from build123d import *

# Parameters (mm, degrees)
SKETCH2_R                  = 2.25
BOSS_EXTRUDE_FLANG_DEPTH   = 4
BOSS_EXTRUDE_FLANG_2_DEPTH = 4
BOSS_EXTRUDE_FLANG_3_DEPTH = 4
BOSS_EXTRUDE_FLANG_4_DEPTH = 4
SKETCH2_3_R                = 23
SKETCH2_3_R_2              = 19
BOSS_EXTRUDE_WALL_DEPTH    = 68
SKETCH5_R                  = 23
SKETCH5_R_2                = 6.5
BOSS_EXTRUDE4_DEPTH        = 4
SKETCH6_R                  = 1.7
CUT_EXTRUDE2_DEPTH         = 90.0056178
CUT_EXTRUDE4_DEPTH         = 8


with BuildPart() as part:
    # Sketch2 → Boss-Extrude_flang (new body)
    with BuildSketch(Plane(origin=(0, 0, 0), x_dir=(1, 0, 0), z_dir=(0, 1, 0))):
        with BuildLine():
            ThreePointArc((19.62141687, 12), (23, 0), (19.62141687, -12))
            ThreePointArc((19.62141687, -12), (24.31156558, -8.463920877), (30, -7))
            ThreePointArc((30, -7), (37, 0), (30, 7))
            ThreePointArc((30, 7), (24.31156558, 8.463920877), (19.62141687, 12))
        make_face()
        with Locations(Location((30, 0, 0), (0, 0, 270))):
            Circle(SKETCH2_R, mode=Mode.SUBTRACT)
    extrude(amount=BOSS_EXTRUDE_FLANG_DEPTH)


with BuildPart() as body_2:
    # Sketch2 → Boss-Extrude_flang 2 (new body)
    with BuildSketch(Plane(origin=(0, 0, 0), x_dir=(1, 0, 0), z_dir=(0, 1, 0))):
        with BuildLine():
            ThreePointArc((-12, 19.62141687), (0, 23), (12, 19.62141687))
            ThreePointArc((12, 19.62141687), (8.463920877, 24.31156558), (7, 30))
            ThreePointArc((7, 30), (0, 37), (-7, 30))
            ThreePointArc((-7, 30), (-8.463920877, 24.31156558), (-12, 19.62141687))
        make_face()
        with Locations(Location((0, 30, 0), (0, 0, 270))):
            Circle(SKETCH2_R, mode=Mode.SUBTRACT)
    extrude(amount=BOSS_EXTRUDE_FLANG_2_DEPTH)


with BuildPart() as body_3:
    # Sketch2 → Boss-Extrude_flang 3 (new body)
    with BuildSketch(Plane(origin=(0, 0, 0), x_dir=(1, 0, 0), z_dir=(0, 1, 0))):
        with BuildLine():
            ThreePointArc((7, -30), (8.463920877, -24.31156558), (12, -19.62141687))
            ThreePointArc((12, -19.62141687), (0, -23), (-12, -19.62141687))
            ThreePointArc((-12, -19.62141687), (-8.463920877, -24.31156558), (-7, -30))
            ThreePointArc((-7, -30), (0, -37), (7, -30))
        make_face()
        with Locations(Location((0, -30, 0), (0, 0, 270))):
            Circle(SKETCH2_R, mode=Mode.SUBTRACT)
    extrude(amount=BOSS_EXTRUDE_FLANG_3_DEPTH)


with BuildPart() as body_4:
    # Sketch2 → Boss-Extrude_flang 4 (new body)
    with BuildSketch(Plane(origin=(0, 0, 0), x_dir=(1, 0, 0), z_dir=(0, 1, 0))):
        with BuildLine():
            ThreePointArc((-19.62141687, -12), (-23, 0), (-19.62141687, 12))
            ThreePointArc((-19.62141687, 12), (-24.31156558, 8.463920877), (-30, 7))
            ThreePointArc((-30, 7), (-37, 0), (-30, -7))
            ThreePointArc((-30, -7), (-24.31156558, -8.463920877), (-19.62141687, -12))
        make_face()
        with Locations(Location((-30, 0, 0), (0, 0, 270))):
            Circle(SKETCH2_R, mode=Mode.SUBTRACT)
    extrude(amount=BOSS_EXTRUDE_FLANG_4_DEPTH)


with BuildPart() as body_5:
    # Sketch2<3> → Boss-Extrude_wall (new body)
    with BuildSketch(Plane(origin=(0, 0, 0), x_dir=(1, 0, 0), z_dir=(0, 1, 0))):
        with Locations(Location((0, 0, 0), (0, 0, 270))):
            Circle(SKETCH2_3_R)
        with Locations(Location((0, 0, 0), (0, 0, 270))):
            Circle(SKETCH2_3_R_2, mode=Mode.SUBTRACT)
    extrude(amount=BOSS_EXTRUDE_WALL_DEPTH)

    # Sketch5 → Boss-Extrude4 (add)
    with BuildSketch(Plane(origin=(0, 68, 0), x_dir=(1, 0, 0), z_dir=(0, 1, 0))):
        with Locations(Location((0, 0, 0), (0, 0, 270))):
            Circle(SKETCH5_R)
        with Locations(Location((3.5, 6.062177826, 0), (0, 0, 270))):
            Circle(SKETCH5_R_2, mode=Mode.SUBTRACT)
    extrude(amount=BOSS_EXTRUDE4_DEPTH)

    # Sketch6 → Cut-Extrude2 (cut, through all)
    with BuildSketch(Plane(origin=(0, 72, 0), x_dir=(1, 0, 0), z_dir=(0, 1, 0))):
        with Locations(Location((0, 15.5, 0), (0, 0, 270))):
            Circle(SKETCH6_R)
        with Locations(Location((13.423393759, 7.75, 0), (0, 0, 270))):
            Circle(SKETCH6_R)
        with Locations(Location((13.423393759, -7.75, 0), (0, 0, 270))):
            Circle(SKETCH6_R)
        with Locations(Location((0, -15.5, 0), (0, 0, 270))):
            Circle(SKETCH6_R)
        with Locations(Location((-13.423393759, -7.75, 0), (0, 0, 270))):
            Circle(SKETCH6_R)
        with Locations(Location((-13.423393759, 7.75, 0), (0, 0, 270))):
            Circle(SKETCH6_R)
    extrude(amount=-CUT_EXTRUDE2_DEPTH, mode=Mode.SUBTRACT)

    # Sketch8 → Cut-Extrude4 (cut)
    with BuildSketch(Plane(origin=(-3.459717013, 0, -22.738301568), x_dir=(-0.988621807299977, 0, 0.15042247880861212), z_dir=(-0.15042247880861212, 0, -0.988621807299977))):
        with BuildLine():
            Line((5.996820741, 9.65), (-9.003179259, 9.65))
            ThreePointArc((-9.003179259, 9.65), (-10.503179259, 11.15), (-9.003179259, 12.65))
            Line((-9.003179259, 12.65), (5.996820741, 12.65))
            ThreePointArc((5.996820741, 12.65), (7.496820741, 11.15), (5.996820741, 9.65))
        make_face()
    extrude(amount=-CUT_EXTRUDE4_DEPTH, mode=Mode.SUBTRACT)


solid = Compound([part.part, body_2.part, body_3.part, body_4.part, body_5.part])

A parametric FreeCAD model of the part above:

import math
import FreeCAD as App
import Part
import Sketcher
from FreeCAD import Vector

doc = App.newDocument("Part")
params = doc.addObject("Spreadsheet::Sheet", "Params")
for row, (alias, value) in enumerate([
    ("sketch1_radius", "23 mm"),
    ("sketch1_radius2", "15 mm"),
    ("sketch1_radius3", "7 mm"),
    ("sketch1_diameter", "4.5 mm"),
    ("pad1_length", "4 mm"),
    ("sketch2_radius", "23 mm"),
    ("sketch2_radius2", "15 mm"),
    ("sketch2_radius3", "7 mm"),
    ("sketch2_diameter", "4.5 mm"),
    ("pad2_length", "4 mm"),
    ("sketch3_radius", "15 mm"),
    ("sketch3_radius2", "23 mm"),
    ("sketch3_radius3", "7 mm"),
    ("sketch3_diameter", "4.5 mm"),
    ("pad3_length", "4 mm"),
    ("sketch4_radius", "23 mm"),
    ("sketch4_radius2", "15 mm"),
    ("sketch4_radius3", "7 mm"),
    ("sketch4_diameter", "4.5 mm"),
    ("pad4_length", "4 mm"),
    ("sketch5_diameter", "46 mm"),
    ("sketch5_diameter2", "38 mm"),
    ("pad5_length", "68 mm"),
    ("sketch6_diameter", "46 mm"),
    ("sketch6_diameter2", "13 mm"),
    ("pad6_length", "4 mm"),
    ("sketch7_diameter", "3.4 mm"),
    ("sketch8_radius", "1.5 mm"),
    ("sketch8_width", "15 mm"),
    ("pocket2_length", "8 mm"),
], start=1):
    params.set(f"A{row}", alias)
    params.set(f"B{row}", "=" + value)
    params.setAlias(f"B{row}", alias)

body = doc.addObject("PartDesign::Body", "Body")

sketch1 = doc.addObject("Sketcher::SketchObject", "Sketch")
body.addObject(sketch1)
sketch1.AttachmentSupport = (doc.XZ_Plane, [""])
sketch1.MapMode = "FlatFace"
sketch1.addGeometry([
    Part.ArcOfCircle(Part.Circle(Vector(0, 0, 0), Vector(0, 0, 1), 23), math.radians(-31), math.radians(31)),
    Part.ArcOfCircle(Part.Circle(Vector(30.8, 22, 0), Vector(0, 0, 1), 15), math.radians(-138), math.radians(-93)),
    Part.ArcOfCircle(Part.Circle(Vector(30, 0, 0), Vector(0, 0, 1), 7), math.radians(-90), math.radians(90)),
    Part.ArcOfCircle(Part.Circle(Vector(30.8, -22, 0), Vector(0, 0, 1), 15), math.radians(93), math.radians(138)),
    Part.Circle(Vector(30, 0, 0), Vector(0, 0, 1), 2.2),
], False)
sketch1.addConstraint([
    Sketcher.Constraint("Coincident", 0, 2, 1, 1),
    Sketcher.Constraint("Coincident", 1, 2, 2, 2),
    Sketcher.Constraint("Coincident", 2, 1, 3, 1),
    Sketcher.Constraint("Coincident", 3, 2, 0, 1),
    Sketcher.Constraint("Coincident", 0, 3, -1, 1),
    Sketcher.Constraint("Coincident", 4, 3, 2, 3),
    Sketcher.Constraint("Equal", 1, 3),
    Sketcher.Constraint("Symmetric", 1, 3, 3, 3, -1),
    Sketcher.Constraint("PointOnObject", 2, 3, -1),
    Sketcher.Constraint("Vertical", 4, 3, 1, 2),
    Sketcher.Constraint("Radius", 0, 23.0),
    Sketcher.Constraint("Radius", 1, 15.0),
    Sketcher.Constraint("Radius", 2, 7.0),
    Sketcher.Constraint("Diameter", 4, 4.5),
    Sketcher.Constraint("DistanceX", -1, 1, 2, 3, 30.0),
    Sketcher.Constraint("DistanceY", -1, 1, 0, 2, 12.0),
])
sketch1.setExpression("Constraints[10]", "Params.sketch1_radius")
sketch1.setExpression("Constraints[11]", "Params.sketch1_radius2")
sketch1.setExpression("Constraints[12]", "Params.sketch1_radius3")
sketch1.setExpression("Constraints[13]", "Params.sketch1_diameter")
pad1 = doc.addObject("PartDesign::Pad", "Pad")
body.addObject(pad1)
pad1.Profile = sketch1
pad1.setExpression("Length", "Params.pad1_length")
pad1.Reversed = True
body2 = doc.addObject("PartDesign::Body", "Body001")

sketch2 = doc.addObject("Sketcher::SketchObject", "Sketch001")
body2.addObject(sketch2)
sketch2.AttachmentSupport = (doc.getObject("XZ_Plane001"), [""])
sketch2.MapMode = "FlatFace"
sketch2.addGeometry([
    Part.ArcOfCircle(Part.Circle(Vector(0, 0, 0), Vector(0, 0, 1), 23), math.radians(-121), math.radians(-59)),
    Part.ArcOfCircle(Part.Circle(Vector(22, -30.8, 0), Vector(0, 0, 1), 15), math.radians(132), math.radians(177)),
    Part.ArcOfCircle(Part.Circle(Vector(0, -30, 0), Vector(0, 0, 1), 7), math.radians(180), math.radians(360)),
    Part.ArcOfCircle(Part.Circle(Vector(-22, -30.8, 0), Vector(0, 0, 1), 15), math.radians(3), math.radians(48)),
    Part.Circle(Vector(0, -30, 0), Vector(0, 0, 1), 2.2),
], False)
sketch2.addConstraint([
    Sketcher.Constraint("Coincident", 0, 2, 1, 1),
    Sketcher.Constraint("Coincident", 1, 2, 2, 2),
    Sketcher.Constraint("Coincident", 2, 1, 3, 1),
    Sketcher.Constraint("Coincident", 3, 2, 0, 1),
    Sketcher.Constraint("Coincident", 0, 3, -1, 1),
    Sketcher.Constraint("Coincident", 4, 3, 2, 3),
    Sketcher.Constraint("Equal", 1, 3),
    Sketcher.Constraint("Symmetric", 1, 3, 3, 3, -2),
    Sketcher.Constraint("PointOnObject", 2, 3, -2),
    Sketcher.Constraint("Horizontal", 4, 3, 1, 2),
    Sketcher.Constraint("Radius", 0, 23.0),
    Sketcher.Constraint("Radius", 1, 15.0),
    Sketcher.Constraint("Radius", 2, 7.0),
    Sketcher.Constraint("Diameter", 4, 4.5),
    Sketcher.Constraint("DistanceY", 2, 3, -1, 1, 30.0),
    Sketcher.Constraint("DistanceX", -1, 1, 0, 2, 12.0),
])
sketch2.setExpression("Constraints[10]", "Params.sketch2_radius")
sketch2.setExpression("Constraints[11]", "Params.sketch2_radius2")
sketch2.setExpression("Constraints[12]", "Params.sketch2_radius3")
sketch2.setExpression("Constraints[13]", "Params.sketch2_diameter")
pad2 = doc.addObject("PartDesign::Pad", "Pad001")
body2.addObject(pad2)
pad2.Profile = sketch2
pad2.setExpression("Length", "Params.pad2_length")
pad2.Reversed = True
body3 = doc.addObject("PartDesign::Body", "Body002")

sketch3 = doc.addObject("Sketcher::SketchObject", "Sketch002")
body3.addObject(sketch3)
sketch3.AttachmentSupport = (doc.getObject("XZ_Plane002"), [""])
sketch3.MapMode = "FlatFace"
sketch3.addGeometry([
    Part.ArcOfCircle(Part.Circle(Vector(22, 30.8, 0), Vector(0, 0, 1), 15), math.radians(-177), math.radians(-132)),
    Part.ArcOfCircle(Part.Circle(Vector(0, 0, 0), Vector(0, 0, 1), 23), math.radians(59), math.radians(121)),
    Part.ArcOfCircle(Part.Circle(Vector(-22, 30.8, 0), Vector(0, 0, 1), 15), math.radians(-48), math.radians(-3)),
    Part.ArcOfCircle(Part.Circle(Vector(0, 30, 0), Vector(0, 0, 1), 7), math.radians(0), math.radians(180)),
    Part.Circle(Vector(0, 30, 0), Vector(0, 0, 1), 2.2),
], False)
sketch3.addConstraint([
    Sketcher.Constraint("Coincident", 0, 2, 1, 1),
    Sketcher.Constraint("Coincident", 1, 2, 2, 1),
    Sketcher.Constraint("Coincident", 2, 2, 3, 2),
    Sketcher.Constraint("Coincident", 3, 1, 0, 1),
    Sketcher.Constraint("Coincident", 1, 3, -1, 1),
    Sketcher.Constraint("Coincident", 4, 3, 3, 3),
    Sketcher.Constraint("Equal", 0, 2),
    Sketcher.Constraint("Symmetric", 0, 3, 2, 3, -2),
    Sketcher.Constraint("PointOnObject", 3, 3, -2),
    Sketcher.Constraint("Horizontal", 4, 3, 2, 2),
    Sketcher.Constraint("Radius", 0, 15.0),
    Sketcher.Constraint("Radius", 1, 23.0),
    Sketcher.Constraint("Radius", 3, 7.0),
    Sketcher.Constraint("Diameter", 4, 4.5),
    Sketcher.Constraint("DistanceY", -1, 1, 3, 3, 30.0),
    Sketcher.Constraint("DistanceX", -1, 1, 0, 2, 12.0),
])
sketch3.setExpression("Constraints[10]", "Params.sketch3_radius")
sketch3.setExpression("Constraints[11]", "Params.sketch3_radius2")
sketch3.setExpression("Constraints[12]", "Params.sketch3_radius3")
sketch3.setExpression("Constraints[13]", "Params.sketch3_diameter")
pad3 = doc.addObject("PartDesign::Pad", "Pad002")
body3.addObject(pad3)
pad3.Profile = sketch3
pad3.setExpression("Length", "Params.pad3_length")
pad3.Reversed = True
body4 = doc.addObject("PartDesign::Body", "Body003")

sketch4 = doc.addObject("Sketcher::SketchObject", "Sketch003")
body4.addObject(sketch4)
sketch4.AttachmentSupport = (doc.getObject("XZ_Plane003"), [""])
sketch4.MapMode = "FlatFace"
sketch4.addGeometry([
    Part.ArcOfCircle(Part.Circle(Vector(0, 0, 0), Vector(0, 0, 1), 23), math.radians(149), math.radians(211)),
    Part.ArcOfCircle(Part.Circle(Vector(-30.8, -22, 0), Vector(0, 0, 1), 15), math.radians(42), math.radians(87)),
    Part.ArcOfCircle(Part.Circle(Vector(-30, 0, 0), Vector(0, 0, 1), 7), math.radians(90), math.radians(270)),
    Part.ArcOfCircle(Part.Circle(Vector(-30.8, 22, 0), Vector(0, 0, 1), 15), math.radians(-87), math.radians(-42)),
    Part.Circle(Vector(-30, 0, 0), Vector(0, 0, 1), 2.2),
], False)
sketch4.addConstraint([
    Sketcher.Constraint("Coincident", 0, 2, 1, 1),
    Sketcher.Constraint("Coincident", 1, 2, 2, 2),
    Sketcher.Constraint("Coincident", 2, 1, 3, 1),
    Sketcher.Constraint("Coincident", 3, 2, 0, 1),
    Sketcher.Constraint("Coincident", 0, 3, -1, 1),
    Sketcher.Constraint("Coincident", 4, 3, 2, 3),
    Sketcher.Constraint("Equal", 1, 3),
    Sketcher.Constraint("Symmetric", 1, 3, 3, 3, -1),
    Sketcher.Constraint("PointOnObject", 2, 3, -1),
    Sketcher.Constraint("Vertical", 4, 3, 1, 2),
    Sketcher.Constraint("Radius", 0, 23.0),
    Sketcher.Constraint("Radius", 1, 15.0),
    Sketcher.Constraint("Radius", 2, 7.0),
    Sketcher.Constraint("Diameter", 4, 4.5),
    Sketcher.Constraint("DistanceX", 2, 3, -1, 1, 30.0),
    Sketcher.Constraint("DistanceY", 0, 2, -1, 1, 12.0),
])
sketch4.setExpression("Constraints[10]", "Params.sketch4_radius")
sketch4.setExpression("Constraints[11]", "Params.sketch4_radius2")
sketch4.setExpression("Constraints[12]", "Params.sketch4_radius3")
sketch4.setExpression("Constraints[13]", "Params.sketch4_diameter")
pad4 = doc.addObject("PartDesign::Pad", "Pad003")
body4.addObject(pad4)
pad4.Profile = sketch4
pad4.setExpression("Length", "Params.pad4_length")
pad4.Reversed = True
body5 = doc.addObject("PartDesign::Body", "Body004")

sketch5 = doc.addObject("Sketcher::SketchObject", "Sketch004")
body5.addObject(sketch5)
sketch5.AttachmentSupport = (doc.getObject("XZ_Plane004"), [""])
sketch5.MapMode = "FlatFace"
sketch5.addGeometry([
    Part.Circle(Vector(0, 0, 0), Vector(0, 0, 1), 23),
    Part.Circle(Vector(0, 0, 0), Vector(0, 0, 1), 19),
], False)
sketch5.addConstraint([
    Sketcher.Constraint("Coincident", 0, 3, -1, 1),
    Sketcher.Constraint("Coincident", 1, 3, -1, 1),
    Sketcher.Constraint("Diameter", 0, 46.0),
    Sketcher.Constraint("Diameter", 1, 38.0),
])
sketch5.setExpression("Constraints[2]", "Params.sketch5_diameter")
sketch5.setExpression("Constraints[3]", "Params.sketch5_diameter2")
pad5 = doc.addObject("PartDesign::Pad", "Pad004")
body5.addObject(pad5)
pad5.Profile = sketch5
pad5.setExpression("Length", "Params.pad5_length")
pad5.Reversed = True

sketch6 = doc.addObject("Sketcher::SketchObject", "Sketch005")
body5.addObject(sketch6)
sketch6.AttachmentSupport = (doc.getObject("XZ_Plane004"), [""])
sketch6.MapMode = "FlatFace"
sketch6.AttachmentOffset = App.Placement(Vector(0, 0, -68), App.Rotation())
sketch6.addGeometry([
    Part.Circle(Vector(0, 0, 0), Vector(0, 0, 1), 23),
    Part.Circle(Vector(4, -6, 0), Vector(0, 0, 1), 6),
], False)
sketch6.addConstraint([
    Sketcher.Constraint("Coincident", 0, 3, -1, 1),
    Sketcher.Constraint("Diameter", 0, 46.0),
    Sketcher.Constraint("Diameter", 1, 13.0),
    Sketcher.Constraint("DistanceX", -1, 1, 1, 3, 3.5),
    Sketcher.Constraint("DistanceY", 1, 3, -1, 1, 6.062178),
])
sketch6.setExpression("Constraints[1]", "Params.sketch6_diameter")
sketch6.setExpression("Constraints[2]", "Params.sketch6_diameter2")
pad6 = doc.addObject("PartDesign::Pad", "Pad005")
body5.addObject(pad6)
pad6.Profile = sketch6
pad6.setExpression("Length", "Params.pad6_length")
pad6.Reversed = True

sketch7 = doc.addObject("Sketcher::SketchObject", "Sketch006")
body5.addObject(sketch7)
sketch7.AttachmentSupport = (doc.getObject("XZ_Plane004"), [""])
sketch7.MapMode = "FlatFace"
sketch7.AttachmentOffset = App.Placement(Vector(0, 0, -72), App.Rotation())
sketch7.addGeometry([
    Part.Circle(Vector(0, -15.5, 0), Vector(0, 0, 1), 1.7),
    Part.Circle(Vector(13.4, -7.8, 0), Vector(0, 0, 1), 1.7),
    Part.Circle(Vector(13.4, 7.8, 0), Vector(0, 0, 1), 1.7),
    Part.Circle(Vector(0, 15.5, 0), Vector(0, 0, 1), 1.7),
    Part.Circle(Vector(-13.4, 7.8, 0), Vector(0, 0, 1), 1.7),
    Part.Circle(Vector(-13.4, -7.8, 0), Vector(0, 0, 1), 1.7),
], False)
sketch7.addConstraint([
    Sketcher.Constraint("Equal", 0, 1),
    Sketcher.Constraint("Equal", 1, 2),
    Sketcher.Constraint("Equal", 2, 3),
    Sketcher.Constraint("Equal", 3, 4),
    Sketcher.Constraint("Equal", 4, 5),
    Sketcher.Constraint("Symmetric", 0, 3, 3, 3, -1, 1),
    Sketcher.Constraint("Symmetric", 1, 3, 4, 3, -1, 1),
    Sketcher.Constraint("Symmetric", 2, 3, 5, 3, -1, 1),
    Sketcher.Constraint("Symmetric", 2, 3, 4, 3, -2),
    Sketcher.Constraint("PointOnObject", 0, 3, -2),
    Sketcher.Constraint("Diameter", 0, 3.4),
    Sketcher.Constraint("DistanceY", 0, 3, 3, 3, 31.0),
    Sketcher.Constraint("DistanceY", 1, 3, 2, 3, 15.5),
    Sketcher.Constraint("DistanceX", -1, 1, 1, 3, 13.423394),
])
sketch7.setExpression("Constraints[10]", "Params.sketch7_diameter")
pocket1 = doc.addObject("PartDesign::Pocket", "Pocket")
body5.addObject(pocket1)
pocket1.Profile = sketch7
pocket1.Type = "ThroughAll"
pocket1.Reversed = True

sketch8 = doc.addObject("Sketcher::SketchObject", "Sketch007")
body5.addObject(sketch8)
sketch8.Placement = App.Placement(Vector(-3.459717, 0, -22.738302), App.Rotation(Vector(-0.988621807, 0, 0.150422479), Vector(0, 0.999999999, 0), Vector(-0.150422479, 0, -0.988621807), "ZXY"))
sketch8.addGeometry([
    Part.LineSegment(Vector(-9, 9.6, 0), Vector(6, 9.6, 0)),
    Part.ArcOfCircle(Part.Circle(Vector(6, 11.1, 0), Vector(0, 0, 1), 1.5), math.radians(-90), math.radians(90)),
    Part.LineSegment(Vector(6, 12.6, 0), Vector(-9, 12.6, 0)),
    Part.ArcOfCircle(Part.Circle(Vector(-9, 11.1, 0), Vector(0, 0, 1), 1.5), math.radians(90), math.radians(270)),
], False)
sketch8.addConstraint([
    Sketcher.Constraint("Tangent", 0, 2, 1, 1),
    Sketcher.Constraint("Tangent", 1, 2, 2, 1),
    Sketcher.Constraint("Tangent", 2, 2, 3, 1),
    Sketcher.Constraint("Tangent", 3, 2, 0, 1),
    Sketcher.Constraint("Horizontal", 0),
    Sketcher.Constraint("Horizontal", 2),
    Sketcher.Constraint("Radius", 1, 1.5),
    Sketcher.Constraint("DistanceX", 0, 1, 0, 2, 15.0),
    Sketcher.Constraint("DistanceY", -1, 1, 1, 3, 11.15),
    Sketcher.Constraint("DistanceX", -1, 1, 1, 3, 5.996821),
])
sketch8.setExpression("Constraints[6]", "Params.sketch8_radius")
sketch8.setExpression("Constraints[7]", "Params.sketch8_width")
pocket2 = doc.addObject("PartDesign::Pocket", "Pocket001")
body5.addObject(pocket2)
pocket2.Profile = sketch8
pocket2.setExpression("Length", "Params.pocket2_length")

doc.recompute()
